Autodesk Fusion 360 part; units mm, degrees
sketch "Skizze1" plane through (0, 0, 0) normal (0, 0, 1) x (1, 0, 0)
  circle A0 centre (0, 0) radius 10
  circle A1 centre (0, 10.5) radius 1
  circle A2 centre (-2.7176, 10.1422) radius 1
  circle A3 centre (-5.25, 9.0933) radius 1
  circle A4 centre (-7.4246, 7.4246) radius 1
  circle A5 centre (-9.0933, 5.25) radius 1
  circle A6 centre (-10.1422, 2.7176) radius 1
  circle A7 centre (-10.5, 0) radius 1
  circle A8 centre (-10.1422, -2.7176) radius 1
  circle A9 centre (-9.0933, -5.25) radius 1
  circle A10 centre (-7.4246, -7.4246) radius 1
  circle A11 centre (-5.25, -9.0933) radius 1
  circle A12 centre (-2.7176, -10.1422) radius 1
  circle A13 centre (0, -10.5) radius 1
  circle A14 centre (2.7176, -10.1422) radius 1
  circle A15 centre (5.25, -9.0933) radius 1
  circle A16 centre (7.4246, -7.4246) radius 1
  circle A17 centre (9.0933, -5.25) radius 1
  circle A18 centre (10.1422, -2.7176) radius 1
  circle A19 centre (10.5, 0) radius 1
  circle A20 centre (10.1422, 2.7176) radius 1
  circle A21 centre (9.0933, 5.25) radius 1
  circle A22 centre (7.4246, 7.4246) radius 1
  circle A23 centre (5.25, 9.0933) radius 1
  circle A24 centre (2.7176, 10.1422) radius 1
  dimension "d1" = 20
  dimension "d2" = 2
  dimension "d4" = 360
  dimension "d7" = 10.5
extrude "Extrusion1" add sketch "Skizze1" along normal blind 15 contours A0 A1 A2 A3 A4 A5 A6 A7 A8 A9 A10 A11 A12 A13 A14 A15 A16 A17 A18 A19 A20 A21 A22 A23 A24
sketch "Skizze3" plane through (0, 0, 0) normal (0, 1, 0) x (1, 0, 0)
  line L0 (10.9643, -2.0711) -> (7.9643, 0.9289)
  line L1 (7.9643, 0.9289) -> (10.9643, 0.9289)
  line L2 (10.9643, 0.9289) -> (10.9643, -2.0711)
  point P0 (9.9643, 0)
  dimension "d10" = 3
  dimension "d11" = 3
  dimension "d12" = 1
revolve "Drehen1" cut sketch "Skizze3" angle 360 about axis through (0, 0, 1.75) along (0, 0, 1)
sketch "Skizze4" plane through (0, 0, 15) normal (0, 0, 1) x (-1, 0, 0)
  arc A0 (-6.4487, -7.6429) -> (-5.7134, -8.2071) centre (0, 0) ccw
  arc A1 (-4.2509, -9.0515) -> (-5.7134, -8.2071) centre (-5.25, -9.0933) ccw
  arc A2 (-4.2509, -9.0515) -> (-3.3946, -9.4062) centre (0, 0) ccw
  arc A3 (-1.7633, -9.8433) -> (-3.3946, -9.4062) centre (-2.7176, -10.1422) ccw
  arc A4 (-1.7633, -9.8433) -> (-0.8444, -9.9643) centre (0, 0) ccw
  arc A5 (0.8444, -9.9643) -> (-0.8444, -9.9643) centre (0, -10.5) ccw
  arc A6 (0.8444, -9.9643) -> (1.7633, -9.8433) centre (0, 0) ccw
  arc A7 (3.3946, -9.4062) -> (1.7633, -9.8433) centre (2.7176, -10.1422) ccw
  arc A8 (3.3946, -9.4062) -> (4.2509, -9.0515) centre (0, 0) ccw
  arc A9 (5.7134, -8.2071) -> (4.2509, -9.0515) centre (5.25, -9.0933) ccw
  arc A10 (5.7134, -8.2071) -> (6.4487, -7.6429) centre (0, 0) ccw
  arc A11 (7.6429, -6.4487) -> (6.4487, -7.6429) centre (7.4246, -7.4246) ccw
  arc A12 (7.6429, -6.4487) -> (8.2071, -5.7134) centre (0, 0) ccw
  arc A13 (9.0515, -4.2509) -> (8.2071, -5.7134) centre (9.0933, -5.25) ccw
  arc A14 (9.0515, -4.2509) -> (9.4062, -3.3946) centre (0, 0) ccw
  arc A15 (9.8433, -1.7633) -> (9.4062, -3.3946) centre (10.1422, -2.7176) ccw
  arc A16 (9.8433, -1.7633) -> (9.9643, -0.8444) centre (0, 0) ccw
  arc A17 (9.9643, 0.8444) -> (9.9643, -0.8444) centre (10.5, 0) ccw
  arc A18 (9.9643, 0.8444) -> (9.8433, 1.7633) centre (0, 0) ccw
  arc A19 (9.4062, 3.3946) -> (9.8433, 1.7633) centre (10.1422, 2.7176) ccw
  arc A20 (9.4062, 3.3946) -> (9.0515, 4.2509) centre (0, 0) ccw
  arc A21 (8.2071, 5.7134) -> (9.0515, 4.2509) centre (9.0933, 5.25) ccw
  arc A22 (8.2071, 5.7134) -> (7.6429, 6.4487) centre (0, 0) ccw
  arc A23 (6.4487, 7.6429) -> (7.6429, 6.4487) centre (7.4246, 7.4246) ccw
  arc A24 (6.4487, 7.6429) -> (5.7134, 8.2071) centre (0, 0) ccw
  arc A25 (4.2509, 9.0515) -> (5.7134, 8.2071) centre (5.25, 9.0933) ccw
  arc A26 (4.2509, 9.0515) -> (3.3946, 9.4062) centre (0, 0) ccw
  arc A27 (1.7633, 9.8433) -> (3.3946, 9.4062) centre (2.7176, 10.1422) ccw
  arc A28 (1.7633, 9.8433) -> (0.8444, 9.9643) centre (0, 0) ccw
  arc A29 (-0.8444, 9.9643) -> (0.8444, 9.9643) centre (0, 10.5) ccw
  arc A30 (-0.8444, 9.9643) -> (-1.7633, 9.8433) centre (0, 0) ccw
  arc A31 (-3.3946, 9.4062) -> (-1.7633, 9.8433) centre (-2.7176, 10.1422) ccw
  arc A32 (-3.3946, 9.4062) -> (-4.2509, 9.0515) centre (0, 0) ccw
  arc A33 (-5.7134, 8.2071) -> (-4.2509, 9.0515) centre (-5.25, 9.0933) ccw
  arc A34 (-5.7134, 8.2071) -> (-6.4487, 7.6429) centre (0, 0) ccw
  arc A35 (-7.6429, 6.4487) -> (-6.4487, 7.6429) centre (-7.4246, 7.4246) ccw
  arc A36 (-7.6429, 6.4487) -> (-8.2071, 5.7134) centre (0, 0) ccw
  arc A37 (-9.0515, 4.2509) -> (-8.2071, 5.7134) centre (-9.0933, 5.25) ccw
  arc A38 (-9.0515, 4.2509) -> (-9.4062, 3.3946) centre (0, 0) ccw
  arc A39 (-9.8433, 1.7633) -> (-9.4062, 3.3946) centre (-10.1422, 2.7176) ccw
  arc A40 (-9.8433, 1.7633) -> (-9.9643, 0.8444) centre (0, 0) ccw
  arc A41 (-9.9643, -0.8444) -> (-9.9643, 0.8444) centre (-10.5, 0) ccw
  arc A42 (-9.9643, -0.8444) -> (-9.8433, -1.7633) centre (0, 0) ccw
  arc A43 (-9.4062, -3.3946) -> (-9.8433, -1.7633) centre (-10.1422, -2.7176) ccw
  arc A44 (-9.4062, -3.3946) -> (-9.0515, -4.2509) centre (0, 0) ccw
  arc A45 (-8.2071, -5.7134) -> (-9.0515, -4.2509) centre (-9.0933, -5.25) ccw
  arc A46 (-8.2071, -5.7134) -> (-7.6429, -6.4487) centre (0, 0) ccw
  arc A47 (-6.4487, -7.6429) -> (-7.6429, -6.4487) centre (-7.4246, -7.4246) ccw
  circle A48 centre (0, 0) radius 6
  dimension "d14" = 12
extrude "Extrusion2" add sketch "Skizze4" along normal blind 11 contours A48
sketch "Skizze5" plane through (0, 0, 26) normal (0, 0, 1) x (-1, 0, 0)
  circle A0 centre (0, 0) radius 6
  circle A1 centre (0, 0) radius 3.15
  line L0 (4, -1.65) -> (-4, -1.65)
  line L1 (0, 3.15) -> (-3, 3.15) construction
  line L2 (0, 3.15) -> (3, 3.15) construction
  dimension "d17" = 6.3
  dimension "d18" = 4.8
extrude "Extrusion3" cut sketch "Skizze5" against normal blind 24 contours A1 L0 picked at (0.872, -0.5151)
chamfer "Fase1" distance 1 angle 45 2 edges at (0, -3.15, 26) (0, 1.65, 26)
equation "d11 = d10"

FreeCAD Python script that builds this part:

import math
import FreeCAD as App
import Part
import Sketcher

V = App.Vector


def edges_at(feature, points):
    """Names of the edges that pass closest to the given points."""
    edges = feature.Shape.Edges
    near = lambda p: min(range(len(edges)), key=lambda i: edges[i].distToShape(Part.Vertex(*p))[0])
    return sorted({f"Edge{near(p) + 1}" for p in points})


def add_polygon(sketch, points):
    """Adds a closed chain of lines whose ends are joined by coincident constraints."""
    first, n = sketch.GeometryCount, len(points)
    for a, b in zip(points, points[1:] + points[:1]):
        sketch.addGeometry(Part.LineSegment(App.Vector(*a, 0), App.Vector(*b, 0)), False)
    for i in range(n):
        sketch.addConstraint(Sketcher.Constraint("Coincident", first + i, 2, first + (i + 1) % n, 1))

doc = App.newDocument("Part")
params = doc.addObject("Spreadsheet::Sheet", "Params")
for row, (alias, value) in enumerate([
    ("sketch1_radius", "1 mm"),
    ("sketch1_radius2", "10 mm"),
    ("pad1_length", "15 mm"),
    ("sketch2_width", "3 mm"),
    ("groove_angle", "360 deg"),
    ("sketch3_diameter", "12 mm"),
    ("pad2_length", "11 mm"),
    ("sketch4_radius", "3.15 mm"),
    ("pocket1_length", "24 mm"),
    ("chamfer_size", "1 mm"),
], start=1):
    params.set(f"A{row}", alias)
    params.set(f"B{row}", "=" + value)
    params.setAlias(f"B{row}", alias)

body = doc.addObject("PartDesign::Body", "Body")

sketch1 = doc.addObject("Sketcher::SketchObject", "Sketch")
body.addObject(sketch1)
sketch1.AttachmentSupport = (doc.XY_Plane, [""])
sketch1.MapMode = "FlatFace"
sketch1.addGeometry(Part.ArcOfCircle(Part.Circle(V(10.5, 0, 0), V(0, 0, 1), 1), math.radians(122), math.radians(238)), False)
sketch1.addGeometry(Part.ArcOfCircle(Part.Circle(V(0, 0, 0), V(0, 0, 1), 10), math.radians(4.84), math.radians(10.16)), False)
sketch1.addGeometry(Part.ArcOfCircle(Part.Circle(V(10.1, 2.7, 0), V(0, 0, 1), 1), math.radians(137), math.radians(253)), False)
sketch1.addGeometry(Part.ArcOfCircle(Part.Circle(V(0, 0, 0), V(0, 0, 1), 10), math.radians(19.84), math.radians(25.16)), False)
sketch1.addGeometry(Part.ArcOfCircle(Part.Circle(V(9.1, 5.2, 0), V(0, 0, 1), 1), math.radians(152), math.radians(268)), False)
sketch1.addGeometry(Part.ArcOfCircle(Part.Circle(V(0, 0, 0), V(0, 0, 1), 10), math.radians(34.84), math.radians(40.16)), False)
sketch1.addGeometry(Part.ArcOfCircle(Part.Circle(V(7.4, 7.4, 0), V(0, 0, 1), 1), math.radians(167), math.radians(283)), False)
sketch1.addGeometry(Part.ArcOfCircle(Part.Circle(V(0, 0, 0), V(0, 0, 1), 10), math.radians(49.84), math.radians(55.16)), False)
sketch1.addGeometry(Part.ArcOfCircle(Part.Circle(V(5.2, 9.1, 0), V(0, 0, 1), 1), math.radians(-178), math.radians(-62)), False)
sketch1.addGeometry(Part.ArcOfCircle(Part.Circle(V(0, 0, 0), V(0, 0, 1), 10), math.radians(64.84), math.radians(70.16)), False)
sketch1.addGeometry(Part.ArcOfCircle(Part.Circle(V(2.7, 10.1, 0), V(0, 0, 1), 1), math.radians(-163), math.radians(-47)), False)
sketch1.addGeometry(Part.ArcOfCircle(Part.Circle(V(0, 0, 0), V(0, 0, 1), 10), math.radians(79.84), math.radians(85.16)), False)
sketch1.addGeometry(Part.ArcOfCircle(Part.Circle(V(0, 10.5, 0), V(0, 0, 1), 1), math.radians(-148), math.radians(-32)), False)
sketch1.addGeometry(Part.ArcOfCircle(Part.Circle(V(0, 0, 0), V(0, 0, 1), 10), math.radians(94.84), math.radians(100.16)), False)
sketch1.addGeometry(Part.ArcOfCircle(Part.Circle(V(-2.7, 10.1, 0), V(0, 0, 1), 1), math.radians(-133), math.radians(-17)), False)
sketch1.addGeometry(Part.ArcOfCircle(Part.Circle(V(0, 0, 0), V(0, 0, 1), 10), math.radians(109.84), math.radians(115.16)), False)
sketch1.addGeometry(Part.ArcOfCircle(Part.Circle(V(-5.2, 9.1, 0), V(0, 0, 1), 1), math.radians(-118), math.radians(-2)), False)
sketch1.addGeometry(Part.ArcOfCircle(Part.Circle(V(0, 0, 0), V(0, 0, 1), 10), math.radians(124.84), math.radians(130.16)), False)
sketch1.addGeometry(Part.ArcOfCircle(Part.Circle(V(-7.4, 7.4, 0), V(0, 0, 1), 1), math.radians(-103), math.radians(13)), False)
sketch1.addGeometry(Part.ArcOfCircle(Part.Circle(V(0, 0, 0), V(0, 0, 1), 10), math.radians(139.84), math.radians(145.16)), False)
sketch1.addGeometry(Part.ArcOfCircle(Part.Circle(V(-9.1, 5.2, 0), V(0, 0, 1), 1), math.radians(-88), math.radians(28)), False)
sketch1.addGeometry(Part.ArcOfCircle(Part.Circle(V(0, 0, 0), V(0, 0, 1), 10), math.radians(154.84), math.radians(160.16)), False)
sketch1.addGeometry(Part.ArcOfCircle(Part.Circle(V(-10.1, 2.7, 0), V(0, 0, 1), 1), math.radians(-73), math.radians(43)), False)
sketch1.addGeometry(Part.ArcOfCircle(Part.Circle(V(0, 0, 0), V(0, 0, 1), 10), math.radians(169.84), math.radians(175.16)), False)
sketch1.addGeometry(Part.ArcOfCircle(Part.Circle(V(-10.5, 0, 0), V(0, 0, 1), 1), math.radians(-58), math.radians(58)), False)
sketch1.addGeometry(Part.ArcOfCircle(Part.Circle(V(0, 0, 0), V(0, 0, 1), 10), math.radians(-175.16), math.radians(-169.84)), False)
sketch1.addGeometry(Part.ArcOfCircle(Part.Circle(V(-10.1, -2.7, 0), V(0, 0, 1), 1), math.radians(-43), math.radians(73)), False)
sketch1.addGeometry(Part.ArcOfCircle(Part.Circle(V(0, 0, 0), V(0, 0, 1), 10), math.radians(-160.16), math.radians(-154.84)), False)
sketch1.addGeometry(Part.ArcOfCircle(Part.Circle(V(-9.1, -5.2, 0), V(0, 0, 1), 1), math.radians(-28), math.radians(88)), False)
sketch1.addGeometry(Part.ArcOfCircle(Part.Circle(V(0, 0, 0), V(0, 0, 1), 10), math.radians(-145.16), math.radians(-139.84)), False)
sketch1.addGeometry(Part.ArcOfCircle(Part.Circle(V(-7.4, -7.4, 0), V(0, 0, 1), 1), math.radians(-13), math.radians(103)), False)
sketch1.addGeometry(Part.ArcOfCircle(Part.Circle(V(0, 0, 0), V(0, 0, 1), 10), math.radians(-130.16), math.radians(-124.84)), False)
sketch1.addGeometry(Part.ArcOfCircle(Part.Circle(V(-5.2, -9.1, 0), V(0, 0, 1), 1), math.radians(2), math.radians(118)), False)
sketch1.addGeometry(Part.ArcOfCircle(Part.Circle(V(0, 0, 0), V(0, 0, 1), 10), math.radians(-115.16), math.radians(-109.84)), False)
sketch1.addGeometry(Part.ArcOfCircle(Part.Circle(V(-2.7, -10.1, 0), V(0, 0, 1), 1), math.radians(17), math.radians(133)), False)
sketch1.addGeometry(Part.ArcOfCircle(Part.Circle(V(0, 0, 0), V(0, 0, 1), 10), math.radians(-100.16), math.radians(-94.84)), False)
sketch1.addGeometry(Part.ArcOfCircle(Part.Circle(V(0, -10.5, 0), V(0, 0, 1), 1), math.radians(32), math.radians(148)), False)
sketch1.addGeometry(Part.ArcOfCircle(Part.Circle(V(0, 0, 0), V(0, 0, 1), 10), math.radians(-85.16), math.radians(-79.84)), False)
sketch1.addGeometry(Part.ArcOfCircle(Part.Circle(V(2.7, -10.1, 0), V(0, 0, 1), 1), math.radians(47), math.radians(163)), False)
sketch1.addGeometry(Part.ArcOfCircle(Part.Circle(V(0, 0, 0), V(0, 0, 1), 10), math.radians(-70.16), math.radians(-64.84)), False)
sketch1.addGeometry(Part.ArcOfCircle(Part.Circle(V(5.2, -9.1, 0), V(0, 0, 1), 1), math.radians(62), math.radians(178)), False)
sketch1.addGeometry(Part.ArcOfCircle(Part.Circle(V(0, 0, 0), V(0, 0, 1), 10), math.radians(-55.16), math.radians(-49.84)), False)
sketch1.addGeometry(Part.ArcOfCircle(Part.Circle(V(7.4, -7.4, 0), V(0, 0, 1), 1), math.radians(77), math.radians(193)), False)
sketch1.addGeometry(Part.ArcOfCircle(Part.Circle(V(0, 0, 0), V(0, 0, 1), 10), math.radians(-40.16), math.radians(-34.84)), False)
sketch1.addGeometry(Part.ArcOfCircle(Part.Circle(V(9.1, -5.2, 0), V(0, 0, 1), 1), math.radians(92), math.radians(208)), False)
sketch1.addGeometry(Part.ArcOfCircle(Part.Circle(V(0, 0, 0), V(0, 0, 1), 10), math.radians(-25.16), math.radians(-19.84)), False)
sketch1.addGeometry(Part.ArcOfCircle(Part.Circle(V(10.1, -2.7, 0), V(0, 0, 1), 1), math.radians(107), math.radians(223)), False)
sketch1.addGeometry(Part.ArcOfCircle(Part.Circle(V(0, 0, 0), V(0, 0, 1), 10), math.radians(-10.16), math.radians(-4.84)), False)
sketch1.addConstraint(Sketcher.Constraint("Coincident", 0, 1, 1, 1))
sketch1.addConstraint(Sketcher.Constraint("Coincident", 1, 2, 2, 2))
sketch1.addConstraint(Sketcher.Constraint("Coincident", 2, 1, 3, 1))
sketch1.addConstraint(Sketcher.Constraint("Coincident", 3, 2, 4, 2))
sketch1.addConstraint(Sketcher.Constraint("Coincident", 4, 1, 5, 1))
sketch1.addConstraint(Sketcher.Constraint("Coincident", 5, 2, 6, 2))
sketch1.addConstraint(Sketcher.Constraint("Coincident", 6, 1, 7, 1))
sketch1.addConstraint(Sketcher.Constraint("Coincident", 7, 2, 8, 2))
sketch1.addConstraint(Sketcher.Constraint("Coincident", 8, 1, 9, 1))
sketch1.addConstraint(Sketcher.Constraint("Coincident", 9, 2, 10, 2))
sketch1.addConstraint(Sketcher.Constraint("Coincident", 10, 1, 11, 1))
sketch1.addConstraint(Sketcher.Constraint("Coincident", 11, 2, 12, 2))
sketch1.addConstraint(Sketcher.Constraint("Coincident", 12, 1, 13, 1))
sketch1.addConstraint(Sketcher.Constraint("Coincident", 13, 2, 14, 2))
sketch1.addConstraint(Sketcher.Constraint("Coincident", 14, 1, 15, 1))
sketch1.addConstraint(Sketcher.Constraint("Coincident", 15, 2, 16, 2))
sketch1.addConstraint(Sketcher.Constraint("Coincident", 16, 1, 17, 1))
sketch1.addConstraint(Sketcher.Constraint("Coincident", 17, 2, 18, 2))
sketch1.addConstraint(Sketcher.Constraint("Coincident", 18, 1, 19, 1))
sketch1.addConstraint(Sketcher.Constraint("Coincident", 19, 2, 20, 2))
sketch1.addConstraint(Sketcher.Constraint("Coincident", 20, 1, 21, 1))
sketch1.addConstraint(Sketcher.Constraint("Coincident", 21, 2, 22, 2))
sketch1.addConstraint(Sketcher.Constraint("Coincident", 22, 1, 23, 1))
sketch1.addConstraint(Sketcher.Constraint("Coincident", 23, 2, 24, 2))
sketch1.addConstraint(Sketcher.Constraint("Coincident", 24, 1, 25, 1))
sketch1.addConstraint(Sketcher.Constraint("Coincident", 25, 2, 26, 2))
sketch1.addConstraint(Sketcher.Constraint("Coincident", 26, 1, 27, 1))
sketch1.addConstraint(Sketcher.Constraint("Coincident", 27, 2, 28, 2))
sketch1.addConstraint(Sketcher.Constraint("Coincident", 28, 1, 29, 1))
sketch1.addConstraint(Sketcher.Constraint("Coincident", 29, 2, 30, 2))
sketch1.addConstraint(Sketcher.Constraint("Coincident", 30, 1, 31, 1))
sketch1.addConstraint(Sketcher.Constraint("Coincident", 31, 2, 32, 2))
sketch1.addConstraint(Sketcher.Constraint("Coincident", 32, 1, 33, 1))
sketch1.addConstraint(Sketcher.Constraint("Coincident", 33, 2, 34, 2))
sketch1.addConstraint(Sketcher.Constraint("Coincident", 34, 1, 35, 1))
sketch1.addConstraint(Sketcher.Constraint("Coincident", 35, 2, 36, 2))
sketch1.addConstraint(Sketcher.Constraint("Coincident", 36, 1, 37, 1))
sketch1.addConstraint(Sketcher.Constraint("Coincident", 37, 2, 38, 2))
sketch1.addConstraint(Sketcher.Constraint("Coincident", 38, 1, 39, 1))
sketch1.addConstraint(Sketcher.Constraint("Coincident", 39, 2, 40, 2))
sketch1.addConstraint(Sketcher.Constraint("Coincident", 40, 1, 41, 1))
sketch1.addConstraint(Sketcher.Constraint("Coincident", 41, 2, 42, 2))
sketch1.addConstraint(Sketcher.Constraint("Coincident", 42, 1, 43, 1))
sketch1.addConstraint(Sketcher.Constraint("Coincident", 43, 2, 44, 2))
sketch1.addConstraint(Sketcher.Constraint("Coincident", 44, 1, 45, 1))
sketch1.addConstraint(Sketcher.Constraint("Coincident", 45, 2, 46, 2))
sketch1.addConstraint(Sketcher.Constraint("Coincident", 46, 1, 47, 1))
sketch1.addConstraint(Sketcher.Constraint("Coincident", 47, 2, 0, 2))
sketch1.addConstraint(Sketcher.Constraint("Coincident", 1, 3, -1, 1))
sketch1.addConstraint(Sketcher.Constraint("Coincident", 3, 3, -1, 1))
sketch1.addConstraint(Sketcher.Constraint("Coincident", 5, 3, -1, 1))
sketch1.addConstraint(Sketcher.Constraint("Coincident", 7, 3, -1, 1))
sketch1.addConstraint(Sketcher.Constraint("Coincident", 9, 3, -1, 1))
sketch1.addConstraint(Sketcher.Constraint("Coincident", 11, 3, -1, 1))
sketch1.addConstraint(Sketcher.Constraint("Coincident", 13, 3, -1, 1))
sketch1.addConstraint(Sketcher.Constraint("Coincident", 15, 3, -1, 1))
sketch1.addConstraint(Sketcher.Constraint("Coincident", 17, 3, -1, 1))
sketch1.addConstraint(Sketcher.Constraint("Coincident", 19, 3, -1, 1))
sketch1.addConstraint(Sketcher.Constraint("Coincident", 21, 3, -1, 1))
sketch1.addConstraint(Sketcher.Constraint("Coincident", 23, 3, -1, 1))
sketch1.addConstraint(Sketcher.Constraint("Coincident", 25, 3, -1, 1))
sketch1.addConstraint(Sketcher.Constraint("Coincident", 27, 3, -1, 1))
sketch1.addConstraint(Sketcher.Constraint("Coincident", 29, 3, -1, 1))
sketch1.addConstraint(Sketcher.Constraint("Coincident", 31, 3, -1, 1))
sketch1.addConstraint(Sketcher.Constraint("Coincident", 33, 3, -1, 1))
sketch1.addConstraint(Sketcher.Constraint("Coincident", 35, 3, -1, 1))
sketch1.addConstraint(Sketcher.Constraint("Coincident", 37, 3, -1, 1))
sketch1.addConstraint(Sketcher.Constraint("Coincident", 39, 3, -1, 1))
sketch1.addConstraint(Sketcher.Constraint("Coincident", 41, 3, -1, 1))
sketch1.addConstraint(Sketcher.Constraint("Coincident", 43, 3, -1, 1))
sketch1.addConstraint(Sketcher.Constraint("Coincident", 45, 3, -1, 1))
sketch1.addConstraint(Sketcher.Constraint("Coincident", 47, 3, -1, 1))
sketch1.addConstraint(Sketcher.Constraint("Equal", 0, 2))
sketch1.addConstraint(Sketcher.Constraint("Equal", 1, 3))
sketch1.addConstraint(Sketcher.Constraint("Equal", 2, 4))
sketch1.addConstraint(Sketcher.Constraint("Equal", 3, 5))
sketch1.addConstraint(Sketcher.Constraint("Equal", 4, 6))
sketch1.addConstraint(Sketcher.Constraint("Equal", 5, 7))
sketch1.addConstraint(Sketcher.Constraint("Equal", 6, 8))
sketch1.addConstraint(Sketcher.Constraint("Equal", 7, 9))
sketch1.addConstraint(Sketcher.Constraint("Equal", 8, 10))
sketch1.addConstraint(Sketcher.Constraint("Equal", 9, 11))
sketch1.addConstraint(Sketcher.Constraint("Equal", 10, 12))
sketch1.addConstraint(Sketcher.Constraint("Equal", 11, 13))
sketch1.addConstraint(Sketcher.Constraint("Equal", 12, 14))
sketch1.addConstraint(Sketcher.Constraint("Equal", 13, 15))
sketch1.addConstraint(Sketcher.Constraint("Equal", 14, 16))
sketch1.addConstraint(Sketcher.Constraint("Equal", 15, 17))
sketch1.addConstraint(Sketcher.Constraint("Equal", 16, 18))
sketch1.addConstraint(Sketcher.Constraint("Equal", 17, 19))
sketch1.addConstraint(Sketcher.Constraint("Equal", 18, 20))
sketch1.addConstraint(Sketcher.Constraint("Equal", 19, 21))
sketch1.addConstraint(Sketcher.Constraint("Equal", 20, 22))
sketch1.addConstraint(Sketcher.Constraint("Equal", 21, 23))
sketch1.addConstraint(Sketcher.Constraint("Equal", 22, 24))
sketch1.addConstraint(Sketcher.Constraint("Equal", 23, 25))
sketch1.addConstraint(Sketcher.Constraint("Equal", 24, 26))
sketch1.addConstraint(Sketcher.Constraint("Equal", 25, 27))
sketch1.addConstraint(Sketcher.Constraint("Equal", 26, 28))
sketch1.addConstraint(Sketcher.Constraint("Equal", 27, 29))
sketch1.addConstraint(Sketcher.Constraint("Equal", 28, 30))
sketch1.addConstraint(Sketcher.Constraint("Equal", 29, 31))
sketch1.addConstraint(Sketcher.Constraint("Equal", 30, 32))
sketch1.addConstraint(Sketcher.Constraint("Equal", 31, 33))
sketch1.addConstraint(Sketcher.Constraint("Equal", 32, 34))
sketch1.addConstraint(Sketcher.Constraint("Equal", 33, 35))
sketch1.addConstraint(Sketcher.Constraint("Equal", 34, 36))
sketch1.addConstraint(Sketcher.Constraint("Equal", 35, 37))
sketch1.addConstraint(Sketcher.Constraint("Equal", 36, 38))
sketch1.addConstraint(Sketcher.Constraint("Equal", 37, 39))
sketch1.addConstraint(Sketcher.Constraint("Equal", 38, 40))
sketch1.addConstraint(Sketcher.Constraint("Equal", 39, 41))
sketch1.addConstraint(Sketcher.Constraint("Equal", 40, 42))
sketch1.addConstraint(Sketcher.Constraint("Equal", 41, 43))
sketch1.addConstraint(Sketcher.Constraint("Equal", 42, 44))
sketch1.addConstraint(Sketcher.Constraint("Equal", 43, 45))
sketch1.addConstraint(Sketcher.Constraint("Equal", 44, 46))
sketch1.addConstraint(Sketcher.Constraint("Equal", 45, 47))
sketch1.addConstraint(Sketcher.Constraint("Symmetric", 0, 3, 24, 3, -1, 1))
sketch1.addConstraint(Sketcher.Constraint("Symmetric", 2, 3, 26, 3, -1, 1))
sketch1.addConstraint(Sketcher.Constraint("Symmetric", 4, 3, 28, 3, -1, 1))
sketch1.addConstraint(Sketcher.Constraint("Symmetric", 6, 3, 30, 3, -1, 1))
sketch1.addConstraint(Sketcher.Constraint("Symmetric", 8, 3, 32, 3, -1, 1))
sketch1.addConstraint(Sketcher.Constraint("Symmetric", 10, 3, 34, 3, -1, 1))
sketch1.addConstraint(Sketcher.Constraint("Symmetric", 12, 3, 36, 3, -1, 1))
sketch1.addConstraint(Sketcher.Constraint("Symmetric", 14, 3, 38, 3, -1, 1))
sketch1.addConstraint(Sketcher.Constraint("Symmetric", 16, 3, 40, 3, -1, 1))
sketch1.addConstraint(Sketcher.Constraint("Symmetric", 18, 3, 42, 3, -1, 1))
sketch1.addConstraint(Sketcher.Constraint("Symmetric", 20, 3, 44, 3, -1, 1))
sketch1.addConstraint(Sketcher.Constraint("Symmetric", 22, 3, 46, 3, -1, 1))
sketch1.addConstraint(Sketcher.Constraint("Symmetric", 10, 3, 14, 3, -2))
sketch1.addConstraint(Sketcher.Constraint("Symmetric", 8, 3, 16, 3, -2))
sketch1.addConstraint(Sketcher.Constraint("Symmetric", 6, 3, 18, 3, -2))
sketch1.addConstraint(Sketcher.Constraint("Symmetric", 4, 3, 20, 3, -2))
sketch1.addConstraint(Sketcher.Constraint("Symmetric", 2, 3, 22, 3, -2))
sketch1.addConstraint(Sketcher.Constraint("PointOnObject", 0, 3, -1))
sketch1.addConstraint(Sketcher.Constraint("PointOnObject", 12, 3, -2))
sketch1.addConstraint(Sketcher.Constraint("Radius", 0, 1.0))
sketch1.addConstraint(Sketcher.Constraint("Radius", 1, 10.0))
sketch1.addConstraint(Sketcher.Constraint("DistanceX", -1, 1, 0, 3, 10.5))
sketch1.addConstraint(Sketcher.Constraint("DistanceY", -1, 1, 12, 3, 10.5))
sketch1.addConstraint(Sketcher.Constraint("DistanceY", -1, 1, 4, 3, 5.25))
sketch1.addConstraint(Sketcher.Constraint("DistanceX", -1, 1, 8, 3, 5.25))
sketch1.addConstraint(Sketcher.Constraint("DistanceX", -1, 1, 5, 2, 7.643))
sketch1.addConstraint(Sketcher.Constraint("DistanceY", -1, 1, 6, 1, 7.643))
sketch1.addConstraint(Sketcher.Constraint("DistanceX", -1, 1, 2, 3, 10.1422))
sketch1.addConstraint(Sketcher.Constraint("DistanceY", -1, 1, 2, 3, 2.7176))
sketch1.addConstraint(Sketcher.Constraint("DistanceX", -1, 1, 4, 3, 9.0933))
sketch1.addConstraint(Sketcher.Constraint("DistanceY", -1, 1, 8, 3, 9.0933))
sketch1.addConstraint(Sketcher.Constraint("DistanceX", -1, 1, 10, 3, 2.7176))
sketch1.addConstraint(Sketcher.Constraint("DistanceY", -1, 1, 10, 3, 10.1422))
sketch1.setExpression("Constraints[137]", "Params.sketch1_radius")
sketch1.setExpression("Constraints[138]", "Params.sketch1_radius2")
pad1 = doc.addObject("PartDesign::Pad", "Pad")
body.addObject(pad1)
pad1.Profile = sketch1
pad1.setExpression("Length", "Params.pad1_length")

sketch2 = doc.addObject("Sketcher::SketchObject", "Sketch001")
body.addObject(sketch2)
sketch2.AttachmentSupport = (doc.XZ_Plane, [""])
sketch2.MapMode = "FlatFace"
add_polygon(sketch2, [(8, -0.9), (11, 2.1), (11, -0.9)])
sketch2.addConstraint(Sketcher.Constraint("Vertical", 1))
sketch2.addConstraint(Sketcher.Constraint("Horizontal", 2))
sketch2.addConstraint(Sketcher.Constraint("Equal", 2, 1))
sketch2.addConstraint(Sketcher.Constraint("DistanceX", 2, 2, 2, 1, 3.0))
sketch2.addConstraint(Sketcher.Constraint("DistanceY", -1, 1, 0, 2, 2.071))
sketch2.addConstraint(Sketcher.Constraint("DistanceX", -1, 1, 0, 2, 10.9643))
sketch2.setExpression("Constraints[6]", "Params.sketch2_width")
groove = doc.addObject("PartDesign::Groove", "Groove")
body.addObject(groove)
groove.Profile = sketch2
groove.ReferenceAxis = (sketch2, ["V_Axis"])
groove.setExpression("Angle", "Params.groove_angle")

sketch3 = doc.addObject("Sketcher::SketchObject", "Sketch002")
body.addObject(sketch3)
sketch3.AttachmentSupport = (doc.XY_Plane, [""])
sketch3.MapMode = "FlatFace"
sketch3.AttachmentOffset = App.Placement(V(0, 0, 15), App.Rotation())
sketch3.addGeometry(Part.Circle(V(0, 0, 0), V(0, 0, 1), 6), False)
sketch3.addConstraint(Sketcher.Constraint("Coincident", 0, 3, -1, 1))
sketch3.addConstraint(Sketcher.Constraint("Diameter", 0, 12.0))
sketch3.setExpression("Constraints[1]", "Params.sketch3_diameter")
pad2 = doc.addObject("PartDesign::Pad", "Pad001")
body.addObject(pad2)
pad2.Profile = sketch3
pad2.setExpression("Length", "Params.pad2_length")

sketch4 = doc.addObject("Sketcher::SketchObject", "Sketch003")
body.addObject(sketch4)
sketch4.AttachmentSupport = (doc.XY_Plane, [""])
sketch4.MapMode = "FlatFace"
sketch4.AttachmentOffset = App.Placement(V(0, 0, 26), App.Rotation())
sketch4.addGeometry(Part.ArcOfCircle(Part.Circle(V(0, 0, 0), V(0, 0, 1), 3.1), math.radians(148), math.radians(392)), False)
sketch4.addGeometry(Part.LineSegment(V(2.7, 1.6, 0), V(-2.7, 1.6, 0)), False)
sketch4.addConstraint(Sketcher.Constraint("Coincident", 0, 1, 1, 2))
sketch4.addConstraint(Sketcher.Constraint("Coincident", 1, 1, 0, 2))
sketch4.addConstraint(Sketcher.Constraint("Horizontal", 1))
sketch4.addConstraint(Sketcher.Constraint("Coincident", 0, 3, -1, 1))
sketch4.addConstraint(Sketcher.Constraint("Radius", 0, 3.15))
sketch4.addConstraint(Sketcher.Constraint("DistanceY", -1, 1, 0, 1, 1.65))
sketch4.setExpression("Constraints[4]", "Params.sketch4_radius")
pocket1 = doc.addObject("PartDesign::Pocket", "Pocket")
body.addObject(pocket1)
pocket1.Profile = sketch4
pocket1.setExpression("Length", "Params.pocket1_length")
doc.recompute()

chamfer = doc.addObject("PartDesign::Chamfer", "Chamfer")
body.addObject(chamfer)
chamfer.Base = (pocket1, edges_at(pocket1, [(0, -3.15, 26), (0, 1.65, 26)]))
chamfer.setExpression("Size", "Params.chamfer_size")

doc.recompute()
